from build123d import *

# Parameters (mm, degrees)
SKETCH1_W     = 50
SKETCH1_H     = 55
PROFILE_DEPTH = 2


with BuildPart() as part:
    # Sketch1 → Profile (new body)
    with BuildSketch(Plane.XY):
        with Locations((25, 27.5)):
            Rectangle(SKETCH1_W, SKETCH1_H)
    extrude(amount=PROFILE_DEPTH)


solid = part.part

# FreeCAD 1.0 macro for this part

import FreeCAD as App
import Part
import Sketcher

V = App.Vector


def add_polygon(sketch, points):
    """Adds a closed chain of lines whose ends are joined by coincident constraints."""
    first, n = sketch.GeometryCount, len(points)
    for a, b in zip(points, points[1:] + points[:1]):
        sketch.addGeometry(Part.LineSegment(App.Vector(*a, 0), App.Vector(*b, 0)), False)
    for i in range(n):
        sketch.addConstraint(Sketcher.Constraint("Coincident", first + i, 2, first + (i + 1) % n, 1))

doc = App.newDocument("Part")
body = doc.addObject("PartDesign::Body", "Body")

# Sketch on XY plane
sketch1 = body.newObject("Sketcher::SketchObject", "Sketch")
sketch1.AttachmentSupport = (doc.getObject("XY_Plane"), [""])
sketch1.MapMode = "FlatFace"
add_polygon(sketch1, [(0, 55), (0, 0), (50, 0), (50, 55)])  # lines 0-3
sketch1.addConstraint([
    Sketcher.Constraint("Vertical", 0),
    Sketcher.Constraint("Horizontal", 1),
    Sketcher.Constraint("Vertical", 2),
    Sketcher.Constraint("Horizontal", 3),
    Sketcher.Constraint("Coincident", 0, 2, -1, 1),
    Sketcher.Constraint("DistanceX", 1, 1, 1, 2, 50.0),
    Sketcher.Constraint("DistanceY", 0, 2, 0, 1, 55.0),
])
pad1 = body.newObject("PartDesign::Pad", "Pad")
pad1.Profile = sketch1
pad1.Length = 2

doc.recompute()
